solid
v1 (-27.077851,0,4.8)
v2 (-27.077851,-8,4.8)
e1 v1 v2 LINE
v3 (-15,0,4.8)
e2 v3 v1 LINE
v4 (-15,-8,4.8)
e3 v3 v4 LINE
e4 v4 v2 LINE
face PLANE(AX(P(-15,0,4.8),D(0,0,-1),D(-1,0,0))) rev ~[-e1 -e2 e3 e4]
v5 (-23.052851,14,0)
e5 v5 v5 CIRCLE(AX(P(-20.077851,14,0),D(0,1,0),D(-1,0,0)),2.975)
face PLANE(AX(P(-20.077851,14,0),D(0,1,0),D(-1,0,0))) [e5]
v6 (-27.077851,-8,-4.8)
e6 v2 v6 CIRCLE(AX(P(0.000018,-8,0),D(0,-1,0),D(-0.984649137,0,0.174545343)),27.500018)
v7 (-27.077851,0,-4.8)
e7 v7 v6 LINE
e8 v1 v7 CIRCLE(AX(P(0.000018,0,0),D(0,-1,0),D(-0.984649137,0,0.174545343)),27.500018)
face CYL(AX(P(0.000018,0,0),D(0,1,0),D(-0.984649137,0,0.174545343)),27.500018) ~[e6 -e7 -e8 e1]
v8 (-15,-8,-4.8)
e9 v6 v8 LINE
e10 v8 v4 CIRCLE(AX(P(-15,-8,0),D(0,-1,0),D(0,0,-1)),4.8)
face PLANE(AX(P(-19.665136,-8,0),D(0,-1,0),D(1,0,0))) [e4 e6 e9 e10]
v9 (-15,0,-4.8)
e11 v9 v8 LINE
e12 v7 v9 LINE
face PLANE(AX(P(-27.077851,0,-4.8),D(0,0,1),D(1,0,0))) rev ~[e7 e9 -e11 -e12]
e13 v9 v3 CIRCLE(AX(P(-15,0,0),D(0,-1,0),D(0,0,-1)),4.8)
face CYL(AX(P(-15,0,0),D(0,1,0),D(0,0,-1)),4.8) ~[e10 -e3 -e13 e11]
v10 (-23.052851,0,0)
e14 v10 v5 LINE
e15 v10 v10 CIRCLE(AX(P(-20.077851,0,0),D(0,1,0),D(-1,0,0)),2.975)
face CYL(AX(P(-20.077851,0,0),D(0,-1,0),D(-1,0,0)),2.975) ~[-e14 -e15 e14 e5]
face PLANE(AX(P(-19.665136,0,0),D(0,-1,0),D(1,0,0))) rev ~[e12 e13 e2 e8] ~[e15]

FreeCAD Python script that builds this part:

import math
import FreeCAD as App
import Part
import Sketcher
from FreeCAD import Vector

doc = App.newDocument("Part")
body = doc.addObject("PartDesign::Body", "Body")

sketch1 = body.newObject("Sketcher::SketchObject", "Sketch")
sketch1.AttachmentSupport = (doc.getObject("XZ_Plane"), [""])
sketch1.MapMode = "FlatFace"
sketch1.addGeometry([
    Part.LineSegment(Vector(-15, 4.8, 0), Vector(-27.1, 4.8, 0)),
    Part.ArcOfCircle(Part.Circle(Vector(0, 0, 0), Vector(0, 0, 1), 27.5), math.radians(170), math.radians(190)),
    Part.LineSegment(Vector(-27.1, -4.8, 0), Vector(-15, -4.8, 0)),
    Part.ArcOfCircle(Part.Circle(Vector(-15, 0, 0), Vector(0, 0, 1), 4.8), math.radians(-90), math.radians(90)),
], False)
sketch1.addConstraint([
    Sketcher.Constraint("Coincident", 0, 2, 1, 1),
    Sketcher.Constraint("Coincident", 1, 2, 2, 1),
    Sketcher.Constraint("Tangent", 2, 2, 3, 1),
    Sketcher.Constraint("Tangent", 3, 2, 0, 1),
    Sketcher.Constraint("Horizontal", 0),
    Sketcher.Constraint("Horizontal", 2),
    Sketcher.Constraint("Symmetric", 0, 2, 1, 2, -1),
    Sketcher.Constraint("Radius", 3, 4.8),
    Sketcher.Constraint("DistanceX", 3, 3, -1, 1, 15.0),
    Sketcher.Constraint("Radius", 1, 27.500018),
    Sketcher.Constraint("DistanceX", 0, 2, 0, 1, 12.077851),
])
pad1 = body.newObject("PartDesign::Pad", "Pad")
pad1.Profile = sketch1
pad1.Length = 8

sketch2 = body.newObject("Sketcher::SketchObject", "Sketch001")
sketch2.AttachmentSupport = (doc.getObject("XZ_Plane"), [""])
sketch2.MapMode = "FlatFace"
sketch2.addGeometry(Part.Circle(Vector(-20.1, 0, 0), Vector(0, 0, 1), 3), False)
sketch2.addConstraint([
    Sketcher.Constraint("PointOnObject", 0, 3, -1),
    Sketcher.Constraint("Diameter", 0, 5.95),
    Sketcher.Constraint("DistanceX", 0, 3, -1, 1, 20.077851),
])
pad2 = body.newObject("PartDesign::Pad", "Pad001")
pad2.Profile = sketch2
pad2.Length = 14
pad2.Reversed = True

doc.recompute()
